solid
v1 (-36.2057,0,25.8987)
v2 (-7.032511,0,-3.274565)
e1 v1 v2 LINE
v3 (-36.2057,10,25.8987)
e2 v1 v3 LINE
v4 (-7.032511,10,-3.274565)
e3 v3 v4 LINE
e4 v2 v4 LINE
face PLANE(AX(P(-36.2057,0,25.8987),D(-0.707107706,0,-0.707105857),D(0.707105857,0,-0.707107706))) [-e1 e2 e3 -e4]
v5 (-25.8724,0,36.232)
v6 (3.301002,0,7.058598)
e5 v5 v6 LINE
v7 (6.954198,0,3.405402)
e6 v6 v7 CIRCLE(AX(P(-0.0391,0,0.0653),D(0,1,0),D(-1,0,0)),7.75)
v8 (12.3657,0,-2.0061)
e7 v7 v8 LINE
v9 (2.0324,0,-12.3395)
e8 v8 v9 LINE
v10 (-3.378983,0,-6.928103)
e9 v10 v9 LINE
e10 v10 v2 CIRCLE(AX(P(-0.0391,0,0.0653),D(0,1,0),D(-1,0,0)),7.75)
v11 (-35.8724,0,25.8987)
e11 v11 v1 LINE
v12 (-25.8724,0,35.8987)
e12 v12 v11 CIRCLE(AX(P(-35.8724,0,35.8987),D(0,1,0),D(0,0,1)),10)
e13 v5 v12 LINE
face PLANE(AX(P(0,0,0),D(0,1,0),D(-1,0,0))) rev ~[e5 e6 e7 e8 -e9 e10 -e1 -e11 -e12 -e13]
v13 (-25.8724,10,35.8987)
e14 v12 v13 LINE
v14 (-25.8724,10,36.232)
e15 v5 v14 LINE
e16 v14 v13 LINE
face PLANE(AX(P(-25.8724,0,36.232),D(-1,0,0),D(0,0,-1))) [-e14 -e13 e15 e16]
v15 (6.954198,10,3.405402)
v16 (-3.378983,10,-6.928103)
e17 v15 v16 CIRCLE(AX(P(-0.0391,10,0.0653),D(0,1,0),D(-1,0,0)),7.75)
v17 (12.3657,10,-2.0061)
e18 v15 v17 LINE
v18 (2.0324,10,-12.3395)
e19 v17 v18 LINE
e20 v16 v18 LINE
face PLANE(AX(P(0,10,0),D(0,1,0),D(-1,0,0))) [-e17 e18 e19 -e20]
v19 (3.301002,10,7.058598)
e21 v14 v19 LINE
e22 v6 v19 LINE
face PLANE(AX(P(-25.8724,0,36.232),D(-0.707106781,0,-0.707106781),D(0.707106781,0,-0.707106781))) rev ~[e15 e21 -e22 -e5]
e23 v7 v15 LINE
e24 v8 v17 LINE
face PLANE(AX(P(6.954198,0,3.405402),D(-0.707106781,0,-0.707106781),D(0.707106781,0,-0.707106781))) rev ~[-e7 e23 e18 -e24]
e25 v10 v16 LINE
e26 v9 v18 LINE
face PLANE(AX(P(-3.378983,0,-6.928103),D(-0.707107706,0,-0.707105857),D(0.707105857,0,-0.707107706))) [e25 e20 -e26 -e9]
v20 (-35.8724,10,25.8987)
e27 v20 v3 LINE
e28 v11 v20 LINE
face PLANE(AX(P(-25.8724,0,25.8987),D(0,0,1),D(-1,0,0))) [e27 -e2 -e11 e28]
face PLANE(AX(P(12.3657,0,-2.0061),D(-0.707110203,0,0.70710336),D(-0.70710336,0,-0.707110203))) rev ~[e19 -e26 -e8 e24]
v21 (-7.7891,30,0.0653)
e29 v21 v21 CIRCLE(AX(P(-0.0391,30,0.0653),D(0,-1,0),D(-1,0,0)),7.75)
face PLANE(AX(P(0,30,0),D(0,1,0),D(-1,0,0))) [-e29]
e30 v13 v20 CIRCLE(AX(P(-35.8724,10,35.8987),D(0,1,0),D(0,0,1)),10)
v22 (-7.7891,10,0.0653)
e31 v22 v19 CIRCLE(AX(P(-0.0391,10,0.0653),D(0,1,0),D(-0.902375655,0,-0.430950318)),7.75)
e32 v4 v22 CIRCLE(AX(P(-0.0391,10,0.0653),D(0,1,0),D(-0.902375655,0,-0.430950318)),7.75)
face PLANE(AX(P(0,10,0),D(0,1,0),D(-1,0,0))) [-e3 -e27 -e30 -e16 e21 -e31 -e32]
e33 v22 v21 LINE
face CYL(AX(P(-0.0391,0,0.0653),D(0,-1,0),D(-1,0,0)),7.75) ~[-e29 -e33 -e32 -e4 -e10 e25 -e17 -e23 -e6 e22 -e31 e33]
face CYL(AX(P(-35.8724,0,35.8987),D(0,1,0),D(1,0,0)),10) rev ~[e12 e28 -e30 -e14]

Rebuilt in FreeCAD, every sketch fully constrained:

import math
import FreeCAD as App
import Part
import Sketcher
from FreeCAD import Vector
Q = App.Units.Quantity


def edges_at(feature, points):
    """Names of the edges that pass closest to the given points."""
    edges = feature.Shape.Edges
    near = lambda p: min(range(len(edges)), key=lambda i: edges[i].distToShape(Part.Vertex(*p))[0])
    return sorted({f"Edge{near(p) + 1}" for p in points})

doc = App.newDocument("Part")
body = doc.addObject("PartDesign::Body", "Body")
body.AllowCompound = True

sketch1 = body.newObject("Sketcher::SketchObject", "Sketch")
sketch1.AttachmentSupport = (doc.getObject("XZ_Plane"), [""])
sketch1.MapMode = "FlatFace"
sketch1.addGeometry(Part.ArcOfCircle(Part.Circle(Vector(-0.0391, 0.0653, 0), Vector(0, 0, 1), 7.75), math.radians(64.470175), math.radians(205.527885)), False)
sketch1.addGeometry(Part.LineSegment(Vector(-7.032511, -3.274565, 0), Vector(-36.2057, 25.8987, 0)), False)
sketch1.addGeometry(Part.LineSegment(Vector(-36.2057, 25.8987, 0), Vector(-25.8724, 25.8987, 0)), False)
sketch1.addGeometry(Part.LineSegment(Vector(-25.8724, 25.8987, 0), Vector(-25.8724, 36.232, 0)), False)
sketch1.addGeometry(Part.LineSegment(Vector(-25.8724, 36.232, 0), Vector(3.301002, 7.058598, 0)), False)
sketch1.addGeometry(Part.ArcOfCircle(Part.Circle(Vector(-0.0391, 0.0653, 0), Vector(0, 0, 1), 7.75), math.radians(-115.528035), math.radians(25.529825)), False)
sketch1.addGeometry(Part.LineSegment(Vector(6.954198, 3.405402, 0), Vector(12.3657, -2.0061, 0)), False)
sketch1.addGeometry(Part.LineSegment(Vector(12.3657, -2.0061, 0), Vector(2.0324, -12.3395, 0)), False)
sketch1.addGeometry(Part.LineSegment(Vector(2.0324, -12.3395, 0), Vector(-3.378983, -6.928103, 0)), False)
sketch1.addConstraint(Sketcher.Constraint("Coincident", 0, 2, 1, 1))
sketch1.addConstraint(Sketcher.Constraint("Coincident", 1, 2, 2, 1))
sketch1.addConstraint(Sketcher.Constraint("Coincident", 2, 2, 3, 1))
sketch1.addConstraint(Sketcher.Constraint("Coincident", 3, 2, 4, 1))
sketch1.addConstraint(Sketcher.Constraint("Coincident", 4, 2, 0, 1))
sketch1.addConstraint(Sketcher.Constraint("Coincident", 5, 2, 6, 1))
sketch1.addConstraint(Sketcher.Constraint("Coincident", 6, 2, 7, 1))
sketch1.addConstraint(Sketcher.Constraint("Coincident", 7, 2, 8, 1))
sketch1.addConstraint(Sketcher.Constraint("Coincident", 8, 2, 5, 1))
sketch1.addConstraint(Sketcher.Constraint("Horizontal", 2))
sketch1.addConstraint(Sketcher.Constraint("Vertical", 3))
sketch1.addConstraint(Sketcher.Constraint("Coincident", 5, 3, 0, 3))
sketch1.addConstraint(Sketcher.Constraint("Equal", 0, 5))
sketch1.addConstraint(Sketcher.Constraint("Parallel", 1, 4))
sketch1.addConstraint(Sketcher.Constraint("Parallel", 4, 6))
sketch1.addConstraint(Sketcher.Constraint("Perpendicular", 6, 7))
sketch1.addConstraint(Sketcher.Constraint("Perpendicular", 7, 8))
sketch1.addConstraint(Sketcher.Constraint("Equal", 2, 3))
sketch1.addConstraint(Sketcher.Constraint("Equal", 6, 8))
sketch1.addConstraint(Sketcher.Constraint("Angle", 1, Q("135 deg")))
sketch1.addConstraint(Sketcher.Constraint("Radius", 0, Q("7.75 mm")))
sketch1.addConstraint(Sketcher.Constraint("DistanceX", 2, 2, 0, 2, Q("18.84 mm")))
sketch1.addConstraint(Sketcher.Constraint("DistanceX", 0, 3, 4, 2, Q("3.34 mm")))
sketch1.addConstraint(Sketcher.Constraint("DistanceY", 4, 2, 2, 2, Q("18.84 mm")))
sketch1.addConstraint(Sketcher.Constraint("DistanceY", 0, 3, 5, 2, Q("3.34 mm")))
sketch1.addConstraint(Sketcher.Constraint("Distance", 6, Q("7.653 mm")))
sketch1.addConstraint(Sketcher.Constraint("DistanceX", 0, 3, -1, 1, Q("0.039 mm")))
sketch1.addConstraint(Sketcher.Constraint("DistanceY", -1, 1, 3, 2, Q("36.232 mm")))
pad1 = body.newObject("PartDesign::Pad", "Pad")
pad1.Profile = sketch1
pad1.Length = 10
pad1.Reversed = True

sketch2 = body.newObject("Sketcher::SketchObject", "Sketch001")
sketch2.AttachmentSupport = (doc.getObject("XZ_Plane"), [""])
sketch2.MapMode = "FlatFace"
sketch2.addGeometry(Part.Circle(Vector(-0.0391, 0.0653, 0), Vector(0, 0, 1), 7.75), False)
sketch2.addConstraint(Sketcher.Constraint("Diameter", 0, Q("15.5 mm")))
sketch2.addConstraint(Sketcher.Constraint("DistanceX", 0, 3, -1, 1, Q("0.039 mm")))
sketch2.addConstraint(Sketcher.Constraint("DistanceY", -1, 1, 0, 3, Q("0.0653 mm")))
pad2 = body.newObject("PartDesign::Pad", "Pad001")
pad2.Profile = sketch2
pad2.Length = 30
pad2.Reversed = True
doc.recompute()

fillet = body.newObject("PartDesign::Fillet", "Fillet")
fillet.Base = (pad2, edges_at(pad2, [(-25.872, 5, 25.899)]))
fillet.Radius = 10

doc.recompute()
